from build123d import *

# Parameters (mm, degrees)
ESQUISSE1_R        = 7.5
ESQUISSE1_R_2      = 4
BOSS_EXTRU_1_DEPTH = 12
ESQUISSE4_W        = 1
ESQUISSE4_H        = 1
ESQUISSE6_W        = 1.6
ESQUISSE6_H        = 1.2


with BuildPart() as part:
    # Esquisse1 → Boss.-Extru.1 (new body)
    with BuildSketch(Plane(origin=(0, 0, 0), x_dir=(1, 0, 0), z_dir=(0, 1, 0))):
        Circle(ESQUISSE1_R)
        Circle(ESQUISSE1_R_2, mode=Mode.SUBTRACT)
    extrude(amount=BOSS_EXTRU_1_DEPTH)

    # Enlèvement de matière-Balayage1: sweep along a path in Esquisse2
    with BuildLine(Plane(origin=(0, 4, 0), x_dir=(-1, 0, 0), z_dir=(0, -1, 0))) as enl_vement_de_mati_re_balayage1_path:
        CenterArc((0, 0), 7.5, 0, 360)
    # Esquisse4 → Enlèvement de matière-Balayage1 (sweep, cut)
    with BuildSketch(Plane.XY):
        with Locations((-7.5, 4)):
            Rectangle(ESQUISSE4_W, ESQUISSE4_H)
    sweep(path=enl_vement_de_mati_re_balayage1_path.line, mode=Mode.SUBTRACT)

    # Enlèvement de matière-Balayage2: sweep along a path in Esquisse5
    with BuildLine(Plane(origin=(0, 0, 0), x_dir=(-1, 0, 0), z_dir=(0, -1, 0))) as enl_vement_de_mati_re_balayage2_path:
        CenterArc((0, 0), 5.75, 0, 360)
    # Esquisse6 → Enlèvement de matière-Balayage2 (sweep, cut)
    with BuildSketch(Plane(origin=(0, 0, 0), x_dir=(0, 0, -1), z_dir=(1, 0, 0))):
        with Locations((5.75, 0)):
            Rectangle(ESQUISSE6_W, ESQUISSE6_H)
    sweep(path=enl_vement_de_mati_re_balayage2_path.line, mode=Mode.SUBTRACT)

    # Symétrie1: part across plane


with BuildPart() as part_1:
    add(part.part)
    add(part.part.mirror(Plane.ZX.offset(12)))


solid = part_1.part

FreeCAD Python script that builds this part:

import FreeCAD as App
import Part
import Sketcher

V = App.Vector
Q = App.Units.Quantity

doc = App.newDocument("Part")
body = doc.addObject("PartDesign::Body", "Body")

# Sketch on XZ plane
sketch1 = doc.addObject("Sketcher::SketchObject", "Sketch")
body.addObject(sketch1)
sketch1.AttachmentSupport = (doc.XZ_Plane, [""])
sketch1.MapMode = "FlatFace"
sketch1.addGeometry(Part.Circle(V(0, 0, 0), V(0, 0, 1), 7.5), False)
sketch1.addGeometry(Part.Circle(V(0, 0, 0), V(0, 0, 1), 4), False)
sketch1.addConstraint(Sketcher.Constraint("Coincident", 0, 3, -1, 1))
sketch1.addConstraint(Sketcher.Constraint("Coincident", 1, 3, -1, 1))
sketch1.addConstraint(Sketcher.Constraint("Diameter", 0, Q("15 mm")))
sketch1.addConstraint(Sketcher.Constraint("Diameter", 1, Q("8 mm")))
pad1 = doc.addObject("PartDesign::Pad", "Pad")
body.addObject(pad1)
pad1.Profile = sketch1
pad1.Length = 12
pad1.Reversed = True

# Sketch on XY plane
sketch2 = doc.addObject("Sketcher::SketchObject", "Sketch001")
body.addObject(sketch2)
sketch2.AttachmentSupport = (doc.XY_Plane, [""])
sketch2.MapMode = "FlatFace"
sketch2.addGeometry(Part.LineSegment(V(-8, 4.5, 0), V(-8, 3.5, 0)), False)
sketch2.addGeometry(Part.LineSegment(V(-8, 3.5, 0), V(-7, 3.5, 0)), False)
sketch2.addGeometry(Part.LineSegment(V(-7, 3.5, 0), V(-7, 4.5, 0)), False)
sketch2.addGeometry(Part.LineSegment(V(-7, 4.5, 0), V(-8, 4.5, 0)), False)
sketch2.addConstraint(Sketcher.Constraint("Coincident", 0, 2, 1, 1))
sketch2.addConstraint(Sketcher.Constraint("Coincident", 1, 2, 2, 1))
sketch2.addConstraint(Sketcher.Constraint("Coincident", 2, 2, 3, 1))
sketch2.addConstraint(Sketcher.Constraint("Coincident", 3, 2, 0, 1))
sketch2.addConstraint(Sketcher.Constraint("Vertical", 0))
sketch2.addConstraint(Sketcher.Constraint("Horizontal", 1))
sketch2.addConstraint(Sketcher.Constraint("Vertical", 2))
sketch2.addConstraint(Sketcher.Constraint("Horizontal", 3))
sketch2.addConstraint(Sketcher.Constraint("Equal", 3, 0))
sketch2.addConstraint(Sketcher.Constraint("DistanceX", 1, 1, 1, 2, Q("1 mm")))
sketch2.addConstraint(Sketcher.Constraint("DistanceX", 0, 2, -1, 1, Q("8 mm")))
sketch2.addConstraint(Sketcher.Constraint("DistanceY", -1, 1, 0, 2, Q("3.5 mm")))

# Sketch on XZ plane
sketch3 = doc.addObject("Sketcher::SketchObject", "Sketch002")
body.addObject(sketch3)
sketch3.AttachmentSupport = (doc.XZ_Plane, [""])
sketch3.MapMode = "FlatFace"
sketch3.AttachmentOffset = App.Placement(V(0, 0, -4), App.Rotation())
sketch3.addGeometry(Part.Circle(V(0, 0, 0), V(0, 0, 1), 8), False)
sketch3.addConstraint(Sketcher.Constraint("Coincident", 0, 3, -1, 1))
sketch3.addConstraint(Sketcher.Constraint("Diameter", 0, Q("15 mm")))
doc.recompute()

subtractivepipe = doc.addObject("PartDesign::SubtractivePipe", "SubtractivePipe")
body.addObject(subtractivepipe)
subtractivepipe.Profile = sketch2
subtractivepipe.Spine = (sketch3, ["Edge1"])

# Sketch on YZ plane
sketch4 = doc.addObject("Sketcher::SketchObject", "Sketch003")
body.addObject(sketch4)
sketch4.AttachmentSupport = (doc.YZ_Plane, [""])
sketch4.MapMode = "FlatFace"
sketch4.addGeometry(Part.LineSegment(V(0.6, -5, 0), V(-0.6, -5, 0)), False)
sketch4.addGeometry(Part.LineSegment(V(-0.6, -5, 0), V(-0.6, -6.5, 0)), False)
sketch4.addGeometry(Part.LineSegment(V(-0.6, -6.5, 0), V(0.6, -6.5, 0)), False)
sketch4.addGeometry(Part.LineSegment(V(0.6, -6.5, 0), V(0.6, -5, 0)), False)
sketch4.addConstraint(Sketcher.Constraint("Coincident", 0, 2, 1, 1))
sketch4.addConstraint(Sketcher.Constraint("Coincident", 1, 2, 2, 1))
sketch4.addConstraint(Sketcher.Constraint("Coincident", 2, 2, 3, 1))
sketch4.addConstraint(Sketcher.Constraint("Coincident", 3, 2, 0, 1))
sketch4.addConstraint(Sketcher.Constraint("Horizontal", 0))
sketch4.addConstraint(Sketcher.Constraint("Vertical", 1))
sketch4.addConstraint(Sketcher.Constraint("Horizontal", 2))
sketch4.addConstraint(Sketcher.Constraint("Vertical", 3))
sketch4.addConstraint(Sketcher.Constraint("DistanceX", 0, 2, 0, 1, Q("1.2 mm")))
sketch4.addConstraint(Sketcher.Constraint("DistanceY", 1, 2, 1, 1, Q("1.6 mm")))
sketch4.addConstraint(Sketcher.Constraint("DistanceX", 0, 2, -1, 1, Q("0.6 mm")))
sketch4.addConstraint(Sketcher.Constraint("DistanceY", 0, 2, -1, 1, Q("4.95 mm")))

# Sketch on XZ plane
sketch5 = doc.addObject("Sketcher::SketchObject", "Sketch004")
body.addObject(sketch5)
sketch5.AttachmentSupport = (doc.XZ_Plane, [""])
sketch5.MapMode = "FlatFace"
sketch5.addGeometry(Part.Circle(V(0, 0, 0), V(0, 0, 1), 6), False)
sketch5.addConstraint(Sketcher.Constraint("Coincident", 0, 3, -1, 1))
sketch5.addConstraint(Sketcher.Constraint("Diameter", 0, Q("11.5 mm")))
doc.recompute()

subtractivepipe2 = doc.addObject("PartDesign::SubtractivePipe", "SubtractivePipe001")
body.addObject(subtractivepipe2)
subtractivepipe2.Profile = sketch4
subtractivepipe2.Spine = (sketch5, ["Edge1"])
body2 = doc.addObject("PartDesign::Body", "Body001")
doc.recompute()

body2.BaseFeature = body
doc.recompute()

mirroring = doc.addObject("Part::Mirroring", "Mirroring")
mirroring.Source = body
mirroring.Base = V(0, 12, 0)
mirroring.Normal = V(0, 1, 0)
body3 = doc.addObject("PartDesign::Body", "Body002")
body3.BaseFeature = mirroring
boolean = doc.addObject("PartDesign::Boolean", "Boolean")
body2.addObject(boolean)
boolean.Type = "Fuse"
boolean.addObjects([body3])
doc.recompute()
mirroring.Visibility = False

doc.recompute()
